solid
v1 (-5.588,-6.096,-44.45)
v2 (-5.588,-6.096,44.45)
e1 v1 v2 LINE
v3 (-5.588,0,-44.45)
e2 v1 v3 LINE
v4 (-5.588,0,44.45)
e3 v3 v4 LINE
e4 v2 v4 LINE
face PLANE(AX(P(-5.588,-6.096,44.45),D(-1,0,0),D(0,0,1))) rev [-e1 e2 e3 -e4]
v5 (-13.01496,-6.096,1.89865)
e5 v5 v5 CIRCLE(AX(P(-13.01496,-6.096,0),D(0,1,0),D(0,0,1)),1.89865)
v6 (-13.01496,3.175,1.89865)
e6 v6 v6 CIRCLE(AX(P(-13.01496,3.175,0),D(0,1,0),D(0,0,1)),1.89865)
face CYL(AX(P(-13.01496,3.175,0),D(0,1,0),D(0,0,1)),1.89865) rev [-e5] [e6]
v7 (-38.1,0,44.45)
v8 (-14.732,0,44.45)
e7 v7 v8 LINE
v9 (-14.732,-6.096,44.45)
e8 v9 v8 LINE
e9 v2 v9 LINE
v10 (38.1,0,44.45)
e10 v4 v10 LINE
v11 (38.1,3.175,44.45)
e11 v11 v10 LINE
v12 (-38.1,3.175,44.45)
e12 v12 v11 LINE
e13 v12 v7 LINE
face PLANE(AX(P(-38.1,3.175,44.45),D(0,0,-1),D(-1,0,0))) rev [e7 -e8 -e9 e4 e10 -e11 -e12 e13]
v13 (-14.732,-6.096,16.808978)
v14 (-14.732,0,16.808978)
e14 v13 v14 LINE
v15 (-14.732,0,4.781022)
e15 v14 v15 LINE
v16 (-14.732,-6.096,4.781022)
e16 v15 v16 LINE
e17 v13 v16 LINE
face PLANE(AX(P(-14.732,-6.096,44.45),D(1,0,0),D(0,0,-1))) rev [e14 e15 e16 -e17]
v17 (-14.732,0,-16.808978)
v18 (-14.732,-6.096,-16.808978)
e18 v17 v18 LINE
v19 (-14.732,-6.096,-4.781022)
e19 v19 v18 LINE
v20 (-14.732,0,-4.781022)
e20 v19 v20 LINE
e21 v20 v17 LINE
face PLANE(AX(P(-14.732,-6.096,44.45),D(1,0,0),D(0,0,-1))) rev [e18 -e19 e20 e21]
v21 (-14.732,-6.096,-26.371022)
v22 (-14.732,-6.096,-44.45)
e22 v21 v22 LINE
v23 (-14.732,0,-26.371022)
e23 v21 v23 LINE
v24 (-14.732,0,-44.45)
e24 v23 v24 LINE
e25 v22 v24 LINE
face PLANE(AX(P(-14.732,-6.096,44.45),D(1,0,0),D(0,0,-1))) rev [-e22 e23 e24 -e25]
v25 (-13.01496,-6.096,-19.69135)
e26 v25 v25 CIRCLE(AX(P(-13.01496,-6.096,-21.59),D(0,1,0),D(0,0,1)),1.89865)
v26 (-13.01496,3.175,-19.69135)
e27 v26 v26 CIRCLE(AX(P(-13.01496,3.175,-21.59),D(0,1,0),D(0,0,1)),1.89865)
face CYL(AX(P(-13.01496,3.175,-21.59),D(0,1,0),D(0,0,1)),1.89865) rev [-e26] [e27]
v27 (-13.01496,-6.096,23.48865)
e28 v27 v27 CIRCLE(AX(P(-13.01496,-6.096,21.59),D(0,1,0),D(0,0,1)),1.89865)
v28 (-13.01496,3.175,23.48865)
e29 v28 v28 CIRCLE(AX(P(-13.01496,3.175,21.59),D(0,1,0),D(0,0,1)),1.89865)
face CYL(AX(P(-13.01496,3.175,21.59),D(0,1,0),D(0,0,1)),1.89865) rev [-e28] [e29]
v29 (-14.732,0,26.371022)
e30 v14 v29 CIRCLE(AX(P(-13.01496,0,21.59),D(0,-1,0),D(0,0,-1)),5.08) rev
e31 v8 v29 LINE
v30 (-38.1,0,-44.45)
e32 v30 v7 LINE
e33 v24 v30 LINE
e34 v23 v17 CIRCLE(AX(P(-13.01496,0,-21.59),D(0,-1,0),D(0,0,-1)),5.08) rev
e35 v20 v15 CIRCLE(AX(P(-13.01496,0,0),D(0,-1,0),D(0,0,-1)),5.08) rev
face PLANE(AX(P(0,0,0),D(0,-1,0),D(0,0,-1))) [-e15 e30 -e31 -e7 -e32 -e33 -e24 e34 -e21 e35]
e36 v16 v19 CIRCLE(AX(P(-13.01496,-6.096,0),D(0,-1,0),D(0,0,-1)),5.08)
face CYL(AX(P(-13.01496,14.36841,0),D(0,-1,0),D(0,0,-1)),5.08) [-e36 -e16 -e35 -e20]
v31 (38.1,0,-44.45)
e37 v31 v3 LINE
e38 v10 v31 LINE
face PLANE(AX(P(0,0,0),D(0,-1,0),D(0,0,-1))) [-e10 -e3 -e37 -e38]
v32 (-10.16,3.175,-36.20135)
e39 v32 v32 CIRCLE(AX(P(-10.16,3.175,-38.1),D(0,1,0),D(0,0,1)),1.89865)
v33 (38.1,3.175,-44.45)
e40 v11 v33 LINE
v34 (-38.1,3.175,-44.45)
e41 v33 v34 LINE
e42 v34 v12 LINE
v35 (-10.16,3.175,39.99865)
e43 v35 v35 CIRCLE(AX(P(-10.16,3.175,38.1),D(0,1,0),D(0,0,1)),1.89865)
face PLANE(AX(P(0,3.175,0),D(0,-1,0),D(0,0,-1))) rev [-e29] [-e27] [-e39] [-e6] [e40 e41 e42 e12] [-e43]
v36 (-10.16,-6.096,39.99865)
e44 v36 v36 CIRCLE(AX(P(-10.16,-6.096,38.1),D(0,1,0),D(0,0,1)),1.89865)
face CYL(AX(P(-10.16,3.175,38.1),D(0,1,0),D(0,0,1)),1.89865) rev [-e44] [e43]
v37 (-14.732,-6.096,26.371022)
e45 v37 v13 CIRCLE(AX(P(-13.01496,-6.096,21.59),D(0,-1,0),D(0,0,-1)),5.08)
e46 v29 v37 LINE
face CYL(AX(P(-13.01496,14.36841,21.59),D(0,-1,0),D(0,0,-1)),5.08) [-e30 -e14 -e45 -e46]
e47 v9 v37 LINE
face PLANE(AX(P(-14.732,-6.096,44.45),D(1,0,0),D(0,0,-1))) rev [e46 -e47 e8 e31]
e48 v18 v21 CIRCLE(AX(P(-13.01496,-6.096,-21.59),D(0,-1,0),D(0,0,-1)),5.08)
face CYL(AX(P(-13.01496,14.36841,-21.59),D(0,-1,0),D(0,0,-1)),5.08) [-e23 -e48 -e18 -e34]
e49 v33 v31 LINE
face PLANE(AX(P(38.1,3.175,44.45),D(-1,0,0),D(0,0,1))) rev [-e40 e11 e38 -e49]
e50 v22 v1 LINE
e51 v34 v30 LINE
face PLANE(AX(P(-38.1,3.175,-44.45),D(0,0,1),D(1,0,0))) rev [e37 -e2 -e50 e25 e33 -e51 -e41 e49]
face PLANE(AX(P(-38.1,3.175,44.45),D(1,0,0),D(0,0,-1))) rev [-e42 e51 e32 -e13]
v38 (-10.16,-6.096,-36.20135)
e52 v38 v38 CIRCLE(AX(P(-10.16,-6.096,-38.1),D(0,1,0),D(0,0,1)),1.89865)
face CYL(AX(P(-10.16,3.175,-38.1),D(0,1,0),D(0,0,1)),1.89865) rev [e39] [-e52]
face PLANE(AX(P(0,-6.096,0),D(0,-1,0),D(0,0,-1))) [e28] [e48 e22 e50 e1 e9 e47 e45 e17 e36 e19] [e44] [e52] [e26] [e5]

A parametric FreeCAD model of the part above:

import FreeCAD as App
import Part
import Sketcher
from FreeCAD import Vector
Q = App.Units.Quantity


def add_polygon(sketch, points):
    """Adds a closed chain of lines whose ends are joined by coincident constraints."""
    first, n = sketch.GeometryCount, len(points)
    for a, b in zip(points, points[1:] + points[:1]):
        sketch.addGeometry(Part.LineSegment(App.Vector(*a, 0), App.Vector(*b, 0)), False)
    for i in range(n):
        sketch.addConstraint(Sketcher.Constraint("Coincident", first + i, 2, first + (i + 1) % n, 1))

doc = App.newDocument("Part")
body = doc.addObject("PartDesign::Body", "Body")

sketch1 = body.newObject("Sketcher::SketchObject", "Sketch")
sketch1.AttachmentSupport = (doc.getObject("XZ_Plane"), [""])
sketch1.MapMode = "FlatFace"
add_polygon(sketch1, [(-38, -44), (-38, 44), (38, 44), (38, -44)])
sketch1.addConstraint(Sketcher.Constraint("Vertical", 0))
sketch1.addConstraint(Sketcher.Constraint("Horizontal", 1))
sketch1.addConstraint(Sketcher.Constraint("Vertical", 2))
sketch1.addConstraint(Sketcher.Constraint("Horizontal", 3))
sketch1.addConstraint(Sketcher.Constraint("Symmetric", 0, 2, 2, 2, -1, 1))
sketch1.addConstraint(Sketcher.Constraint("DistanceX", 1, 1, 1, 2, Q("3 in")))
sketch1.addConstraint(Sketcher.Constraint("DistanceY", 0, 1, 0, 2, Q("3.5 in")))
pad1 = body.newObject("PartDesign::Pad", "Pad")
pad1.Profile = sketch1
pad1.Length = Q("0.125 in")
pad1.Reversed = True

sketch2 = body.newObject("Sketcher::SketchObject", "Sketch001")
sketch2.AttachmentSupport = (doc.getObject("XZ_Plane"), [""])
sketch2.MapMode = "FlatFace"
add_polygon(sketch2, [(-15, 44), (-15, -44), (-6, -44), (-6, 44)])
sketch2.addConstraint(Sketcher.Constraint("Vertical", 0))
sketch2.addConstraint(Sketcher.Constraint("Horizontal", 1))
sketch2.addConstraint(Sketcher.Constraint("Vertical", 2))
sketch2.addConstraint(Sketcher.Constraint("Horizontal", 3))
sketch2.addConstraint(Sketcher.Constraint("DistanceY", 0, 2, 0, 1, Q("3.5 in")))
sketch2.addConstraint(Sketcher.Constraint("DistanceX", 1, 1, 1, 2, Q("0.36 in")))
sketch2.addConstraint(Sketcher.Constraint("DistanceX", 0, 2, -1, 1, Q("0.58 in")))
sketch2.addConstraint(Sketcher.Constraint("DistanceY", 0, 2, -1, 1, Q("1.75 in")))
pad2 = body.newObject("PartDesign::Pad", "Pad001")
pad2.Profile = sketch2
pad2.Length = Q("0.24 in")

sketch3 = body.newObject("Sketcher::SketchObject", "Sketch002")
sketch3.AttachmentSupport = (doc.getObject("XZ_Plane"), [""])
sketch3.MapMode = "FlatFace"
sketch3.AttachmentOffset = App.Placement(Vector(0, 0, -0.125 * 25.4), App.Rotation())
sketch3.addGeometry(Part.Circle(Vector(-10.2, -38.1, 0), Vector(0, 0, 1), 1.9), False)
sketch3.addGeometry(Part.Circle(Vector(-10.2, 38.1, 0), Vector(0, 0, 1), 1.9), False)
sketch3.addConstraint(Sketcher.Constraint("Equal", 0, 1))
sketch3.addConstraint(Sketcher.Constraint("Symmetric", 0, 3, 1, 3, -1))
sketch3.addConstraint(Sketcher.Constraint("DistanceY", 0, 3, 1, 3, Q("3 in")))
sketch3.addConstraint(Sketcher.Constraint("Diameter", 0, Q("0.1495 in")))
sketch3.addConstraint(Sketcher.Constraint("DistanceX", 0, 3, -1, 1, Q("0.4 in")))
doc.recompute()
hole = body.newObject("PartDesign::Hole", "Hole")
hole.Profile = sketch3
hole.ThreadType = "None"
hole.Diameter = Q("0.1495 in")
hole.DepthType = "ThroughAll"
hole.Reversed = True

sketch4 = body.newObject("Sketcher::SketchObject", "Sketch003")
sketch4.AttachmentSupport = (doc.getObject("XZ_Plane"), [""])
sketch4.MapMode = "FlatFace"
sketch4.AttachmentOffset = App.Placement(Vector(0, 0, 0.24 * 25.4), App.Rotation())
sketch4.addGeometry(Part.Circle(Vector(-13, 0, 0), Vector(0, 0, 1), 5), False)
sketch4.addGeometry(Part.Circle(Vector(-13, 22, 0), Vector(0, 0, 1), 5), False)
sketch4.addGeometry(Part.Circle(Vector(-13, -22, 0), Vector(0, 0, 1), 5), False)
sketch4.addConstraint(Sketcher.Constraint("Equal", 0, 1))
sketch4.addConstraint(Sketcher.Constraint("Equal", 1, 2))
sketch4.addConstraint(Sketcher.Constraint("Symmetric", 1, 3, 2, 3, -1))
sketch4.addConstraint(Sketcher.Constraint("PointOnObject", 0, 3, -1))
sketch4.addConstraint(Sketcher.Constraint("Vertical", 0, 3, 1, 3))
sketch4.addConstraint(Sketcher.Constraint("Diameter", 0, Q("0.4 in")))
sketch4.addConstraint(Sketcher.Constraint("DistanceY", 2, 3, 1, 3, Q("1.7 in")))
sketch4.addConstraint(Sketcher.Constraint("DistanceX", 0, 3, -1, 1, Q("0.5124 in")))
pad3 = body.newObject("PartDesign::Pad", "Pad002")
pad3.Profile = sketch4
pad3.Length = Q("0.24 in")
pad3.Reversed = True

sketch5 = body.newObject("Sketcher::SketchObject", "Sketch004")
sketch5.AttachmentSupport = (doc.getObject("XZ_Plane"), [""])
sketch5.MapMode = "FlatFace"
sketch5.AttachmentOffset = App.Placement(Vector(0, 0, -0.125 * 25.4), App.Rotation())
sketch5.addGeometry(Part.Circle(Vector(-13, 0, 0), Vector(0, 0, 1), 1.9), False)
sketch5.addGeometry(Part.Circle(Vector(-13, -21.6, 0), Vector(0, 0, 1), 1.9), False)
sketch5.addGeometry(Part.Circle(Vector(-13, 21.6, 0), Vector(0, 0, 1), 1.9), False)
sketch5.addConstraint(Sketcher.Constraint("Equal", 0, 1))
sketch5.addConstraint(Sketcher.Constraint("Equal", 1, 2))
sketch5.addConstraint(Sketcher.Constraint("Symmetric", 1, 3, 2, 3, -1))
sketch5.addConstraint(Sketcher.Constraint("PointOnObject", 0, 3, -1))
sketch5.addConstraint(Sketcher.Constraint("Vertical", 0, 3, 1, 3))
sketch5.addConstraint(Sketcher.Constraint("Diameter", 0, Q("0.1495 in")))
sketch5.addConstraint(Sketcher.Constraint("DistanceY", 1, 3, 2, 3, Q("1.7 in")))
sketch5.addConstraint(Sketcher.Constraint("DistanceX", 0, 3, -1, 1, Q("0.5124 in")))
doc.recompute()
hole2 = body.newObject("PartDesign::Hole", "Hole001")
hole2.Profile = sketch5
hole2.ThreadType = "None"
hole2.Diameter = Q("0.1495 in")
hole2.DepthType = "ThroughAll"
hole2.Reversed = True

doc.recompute()
